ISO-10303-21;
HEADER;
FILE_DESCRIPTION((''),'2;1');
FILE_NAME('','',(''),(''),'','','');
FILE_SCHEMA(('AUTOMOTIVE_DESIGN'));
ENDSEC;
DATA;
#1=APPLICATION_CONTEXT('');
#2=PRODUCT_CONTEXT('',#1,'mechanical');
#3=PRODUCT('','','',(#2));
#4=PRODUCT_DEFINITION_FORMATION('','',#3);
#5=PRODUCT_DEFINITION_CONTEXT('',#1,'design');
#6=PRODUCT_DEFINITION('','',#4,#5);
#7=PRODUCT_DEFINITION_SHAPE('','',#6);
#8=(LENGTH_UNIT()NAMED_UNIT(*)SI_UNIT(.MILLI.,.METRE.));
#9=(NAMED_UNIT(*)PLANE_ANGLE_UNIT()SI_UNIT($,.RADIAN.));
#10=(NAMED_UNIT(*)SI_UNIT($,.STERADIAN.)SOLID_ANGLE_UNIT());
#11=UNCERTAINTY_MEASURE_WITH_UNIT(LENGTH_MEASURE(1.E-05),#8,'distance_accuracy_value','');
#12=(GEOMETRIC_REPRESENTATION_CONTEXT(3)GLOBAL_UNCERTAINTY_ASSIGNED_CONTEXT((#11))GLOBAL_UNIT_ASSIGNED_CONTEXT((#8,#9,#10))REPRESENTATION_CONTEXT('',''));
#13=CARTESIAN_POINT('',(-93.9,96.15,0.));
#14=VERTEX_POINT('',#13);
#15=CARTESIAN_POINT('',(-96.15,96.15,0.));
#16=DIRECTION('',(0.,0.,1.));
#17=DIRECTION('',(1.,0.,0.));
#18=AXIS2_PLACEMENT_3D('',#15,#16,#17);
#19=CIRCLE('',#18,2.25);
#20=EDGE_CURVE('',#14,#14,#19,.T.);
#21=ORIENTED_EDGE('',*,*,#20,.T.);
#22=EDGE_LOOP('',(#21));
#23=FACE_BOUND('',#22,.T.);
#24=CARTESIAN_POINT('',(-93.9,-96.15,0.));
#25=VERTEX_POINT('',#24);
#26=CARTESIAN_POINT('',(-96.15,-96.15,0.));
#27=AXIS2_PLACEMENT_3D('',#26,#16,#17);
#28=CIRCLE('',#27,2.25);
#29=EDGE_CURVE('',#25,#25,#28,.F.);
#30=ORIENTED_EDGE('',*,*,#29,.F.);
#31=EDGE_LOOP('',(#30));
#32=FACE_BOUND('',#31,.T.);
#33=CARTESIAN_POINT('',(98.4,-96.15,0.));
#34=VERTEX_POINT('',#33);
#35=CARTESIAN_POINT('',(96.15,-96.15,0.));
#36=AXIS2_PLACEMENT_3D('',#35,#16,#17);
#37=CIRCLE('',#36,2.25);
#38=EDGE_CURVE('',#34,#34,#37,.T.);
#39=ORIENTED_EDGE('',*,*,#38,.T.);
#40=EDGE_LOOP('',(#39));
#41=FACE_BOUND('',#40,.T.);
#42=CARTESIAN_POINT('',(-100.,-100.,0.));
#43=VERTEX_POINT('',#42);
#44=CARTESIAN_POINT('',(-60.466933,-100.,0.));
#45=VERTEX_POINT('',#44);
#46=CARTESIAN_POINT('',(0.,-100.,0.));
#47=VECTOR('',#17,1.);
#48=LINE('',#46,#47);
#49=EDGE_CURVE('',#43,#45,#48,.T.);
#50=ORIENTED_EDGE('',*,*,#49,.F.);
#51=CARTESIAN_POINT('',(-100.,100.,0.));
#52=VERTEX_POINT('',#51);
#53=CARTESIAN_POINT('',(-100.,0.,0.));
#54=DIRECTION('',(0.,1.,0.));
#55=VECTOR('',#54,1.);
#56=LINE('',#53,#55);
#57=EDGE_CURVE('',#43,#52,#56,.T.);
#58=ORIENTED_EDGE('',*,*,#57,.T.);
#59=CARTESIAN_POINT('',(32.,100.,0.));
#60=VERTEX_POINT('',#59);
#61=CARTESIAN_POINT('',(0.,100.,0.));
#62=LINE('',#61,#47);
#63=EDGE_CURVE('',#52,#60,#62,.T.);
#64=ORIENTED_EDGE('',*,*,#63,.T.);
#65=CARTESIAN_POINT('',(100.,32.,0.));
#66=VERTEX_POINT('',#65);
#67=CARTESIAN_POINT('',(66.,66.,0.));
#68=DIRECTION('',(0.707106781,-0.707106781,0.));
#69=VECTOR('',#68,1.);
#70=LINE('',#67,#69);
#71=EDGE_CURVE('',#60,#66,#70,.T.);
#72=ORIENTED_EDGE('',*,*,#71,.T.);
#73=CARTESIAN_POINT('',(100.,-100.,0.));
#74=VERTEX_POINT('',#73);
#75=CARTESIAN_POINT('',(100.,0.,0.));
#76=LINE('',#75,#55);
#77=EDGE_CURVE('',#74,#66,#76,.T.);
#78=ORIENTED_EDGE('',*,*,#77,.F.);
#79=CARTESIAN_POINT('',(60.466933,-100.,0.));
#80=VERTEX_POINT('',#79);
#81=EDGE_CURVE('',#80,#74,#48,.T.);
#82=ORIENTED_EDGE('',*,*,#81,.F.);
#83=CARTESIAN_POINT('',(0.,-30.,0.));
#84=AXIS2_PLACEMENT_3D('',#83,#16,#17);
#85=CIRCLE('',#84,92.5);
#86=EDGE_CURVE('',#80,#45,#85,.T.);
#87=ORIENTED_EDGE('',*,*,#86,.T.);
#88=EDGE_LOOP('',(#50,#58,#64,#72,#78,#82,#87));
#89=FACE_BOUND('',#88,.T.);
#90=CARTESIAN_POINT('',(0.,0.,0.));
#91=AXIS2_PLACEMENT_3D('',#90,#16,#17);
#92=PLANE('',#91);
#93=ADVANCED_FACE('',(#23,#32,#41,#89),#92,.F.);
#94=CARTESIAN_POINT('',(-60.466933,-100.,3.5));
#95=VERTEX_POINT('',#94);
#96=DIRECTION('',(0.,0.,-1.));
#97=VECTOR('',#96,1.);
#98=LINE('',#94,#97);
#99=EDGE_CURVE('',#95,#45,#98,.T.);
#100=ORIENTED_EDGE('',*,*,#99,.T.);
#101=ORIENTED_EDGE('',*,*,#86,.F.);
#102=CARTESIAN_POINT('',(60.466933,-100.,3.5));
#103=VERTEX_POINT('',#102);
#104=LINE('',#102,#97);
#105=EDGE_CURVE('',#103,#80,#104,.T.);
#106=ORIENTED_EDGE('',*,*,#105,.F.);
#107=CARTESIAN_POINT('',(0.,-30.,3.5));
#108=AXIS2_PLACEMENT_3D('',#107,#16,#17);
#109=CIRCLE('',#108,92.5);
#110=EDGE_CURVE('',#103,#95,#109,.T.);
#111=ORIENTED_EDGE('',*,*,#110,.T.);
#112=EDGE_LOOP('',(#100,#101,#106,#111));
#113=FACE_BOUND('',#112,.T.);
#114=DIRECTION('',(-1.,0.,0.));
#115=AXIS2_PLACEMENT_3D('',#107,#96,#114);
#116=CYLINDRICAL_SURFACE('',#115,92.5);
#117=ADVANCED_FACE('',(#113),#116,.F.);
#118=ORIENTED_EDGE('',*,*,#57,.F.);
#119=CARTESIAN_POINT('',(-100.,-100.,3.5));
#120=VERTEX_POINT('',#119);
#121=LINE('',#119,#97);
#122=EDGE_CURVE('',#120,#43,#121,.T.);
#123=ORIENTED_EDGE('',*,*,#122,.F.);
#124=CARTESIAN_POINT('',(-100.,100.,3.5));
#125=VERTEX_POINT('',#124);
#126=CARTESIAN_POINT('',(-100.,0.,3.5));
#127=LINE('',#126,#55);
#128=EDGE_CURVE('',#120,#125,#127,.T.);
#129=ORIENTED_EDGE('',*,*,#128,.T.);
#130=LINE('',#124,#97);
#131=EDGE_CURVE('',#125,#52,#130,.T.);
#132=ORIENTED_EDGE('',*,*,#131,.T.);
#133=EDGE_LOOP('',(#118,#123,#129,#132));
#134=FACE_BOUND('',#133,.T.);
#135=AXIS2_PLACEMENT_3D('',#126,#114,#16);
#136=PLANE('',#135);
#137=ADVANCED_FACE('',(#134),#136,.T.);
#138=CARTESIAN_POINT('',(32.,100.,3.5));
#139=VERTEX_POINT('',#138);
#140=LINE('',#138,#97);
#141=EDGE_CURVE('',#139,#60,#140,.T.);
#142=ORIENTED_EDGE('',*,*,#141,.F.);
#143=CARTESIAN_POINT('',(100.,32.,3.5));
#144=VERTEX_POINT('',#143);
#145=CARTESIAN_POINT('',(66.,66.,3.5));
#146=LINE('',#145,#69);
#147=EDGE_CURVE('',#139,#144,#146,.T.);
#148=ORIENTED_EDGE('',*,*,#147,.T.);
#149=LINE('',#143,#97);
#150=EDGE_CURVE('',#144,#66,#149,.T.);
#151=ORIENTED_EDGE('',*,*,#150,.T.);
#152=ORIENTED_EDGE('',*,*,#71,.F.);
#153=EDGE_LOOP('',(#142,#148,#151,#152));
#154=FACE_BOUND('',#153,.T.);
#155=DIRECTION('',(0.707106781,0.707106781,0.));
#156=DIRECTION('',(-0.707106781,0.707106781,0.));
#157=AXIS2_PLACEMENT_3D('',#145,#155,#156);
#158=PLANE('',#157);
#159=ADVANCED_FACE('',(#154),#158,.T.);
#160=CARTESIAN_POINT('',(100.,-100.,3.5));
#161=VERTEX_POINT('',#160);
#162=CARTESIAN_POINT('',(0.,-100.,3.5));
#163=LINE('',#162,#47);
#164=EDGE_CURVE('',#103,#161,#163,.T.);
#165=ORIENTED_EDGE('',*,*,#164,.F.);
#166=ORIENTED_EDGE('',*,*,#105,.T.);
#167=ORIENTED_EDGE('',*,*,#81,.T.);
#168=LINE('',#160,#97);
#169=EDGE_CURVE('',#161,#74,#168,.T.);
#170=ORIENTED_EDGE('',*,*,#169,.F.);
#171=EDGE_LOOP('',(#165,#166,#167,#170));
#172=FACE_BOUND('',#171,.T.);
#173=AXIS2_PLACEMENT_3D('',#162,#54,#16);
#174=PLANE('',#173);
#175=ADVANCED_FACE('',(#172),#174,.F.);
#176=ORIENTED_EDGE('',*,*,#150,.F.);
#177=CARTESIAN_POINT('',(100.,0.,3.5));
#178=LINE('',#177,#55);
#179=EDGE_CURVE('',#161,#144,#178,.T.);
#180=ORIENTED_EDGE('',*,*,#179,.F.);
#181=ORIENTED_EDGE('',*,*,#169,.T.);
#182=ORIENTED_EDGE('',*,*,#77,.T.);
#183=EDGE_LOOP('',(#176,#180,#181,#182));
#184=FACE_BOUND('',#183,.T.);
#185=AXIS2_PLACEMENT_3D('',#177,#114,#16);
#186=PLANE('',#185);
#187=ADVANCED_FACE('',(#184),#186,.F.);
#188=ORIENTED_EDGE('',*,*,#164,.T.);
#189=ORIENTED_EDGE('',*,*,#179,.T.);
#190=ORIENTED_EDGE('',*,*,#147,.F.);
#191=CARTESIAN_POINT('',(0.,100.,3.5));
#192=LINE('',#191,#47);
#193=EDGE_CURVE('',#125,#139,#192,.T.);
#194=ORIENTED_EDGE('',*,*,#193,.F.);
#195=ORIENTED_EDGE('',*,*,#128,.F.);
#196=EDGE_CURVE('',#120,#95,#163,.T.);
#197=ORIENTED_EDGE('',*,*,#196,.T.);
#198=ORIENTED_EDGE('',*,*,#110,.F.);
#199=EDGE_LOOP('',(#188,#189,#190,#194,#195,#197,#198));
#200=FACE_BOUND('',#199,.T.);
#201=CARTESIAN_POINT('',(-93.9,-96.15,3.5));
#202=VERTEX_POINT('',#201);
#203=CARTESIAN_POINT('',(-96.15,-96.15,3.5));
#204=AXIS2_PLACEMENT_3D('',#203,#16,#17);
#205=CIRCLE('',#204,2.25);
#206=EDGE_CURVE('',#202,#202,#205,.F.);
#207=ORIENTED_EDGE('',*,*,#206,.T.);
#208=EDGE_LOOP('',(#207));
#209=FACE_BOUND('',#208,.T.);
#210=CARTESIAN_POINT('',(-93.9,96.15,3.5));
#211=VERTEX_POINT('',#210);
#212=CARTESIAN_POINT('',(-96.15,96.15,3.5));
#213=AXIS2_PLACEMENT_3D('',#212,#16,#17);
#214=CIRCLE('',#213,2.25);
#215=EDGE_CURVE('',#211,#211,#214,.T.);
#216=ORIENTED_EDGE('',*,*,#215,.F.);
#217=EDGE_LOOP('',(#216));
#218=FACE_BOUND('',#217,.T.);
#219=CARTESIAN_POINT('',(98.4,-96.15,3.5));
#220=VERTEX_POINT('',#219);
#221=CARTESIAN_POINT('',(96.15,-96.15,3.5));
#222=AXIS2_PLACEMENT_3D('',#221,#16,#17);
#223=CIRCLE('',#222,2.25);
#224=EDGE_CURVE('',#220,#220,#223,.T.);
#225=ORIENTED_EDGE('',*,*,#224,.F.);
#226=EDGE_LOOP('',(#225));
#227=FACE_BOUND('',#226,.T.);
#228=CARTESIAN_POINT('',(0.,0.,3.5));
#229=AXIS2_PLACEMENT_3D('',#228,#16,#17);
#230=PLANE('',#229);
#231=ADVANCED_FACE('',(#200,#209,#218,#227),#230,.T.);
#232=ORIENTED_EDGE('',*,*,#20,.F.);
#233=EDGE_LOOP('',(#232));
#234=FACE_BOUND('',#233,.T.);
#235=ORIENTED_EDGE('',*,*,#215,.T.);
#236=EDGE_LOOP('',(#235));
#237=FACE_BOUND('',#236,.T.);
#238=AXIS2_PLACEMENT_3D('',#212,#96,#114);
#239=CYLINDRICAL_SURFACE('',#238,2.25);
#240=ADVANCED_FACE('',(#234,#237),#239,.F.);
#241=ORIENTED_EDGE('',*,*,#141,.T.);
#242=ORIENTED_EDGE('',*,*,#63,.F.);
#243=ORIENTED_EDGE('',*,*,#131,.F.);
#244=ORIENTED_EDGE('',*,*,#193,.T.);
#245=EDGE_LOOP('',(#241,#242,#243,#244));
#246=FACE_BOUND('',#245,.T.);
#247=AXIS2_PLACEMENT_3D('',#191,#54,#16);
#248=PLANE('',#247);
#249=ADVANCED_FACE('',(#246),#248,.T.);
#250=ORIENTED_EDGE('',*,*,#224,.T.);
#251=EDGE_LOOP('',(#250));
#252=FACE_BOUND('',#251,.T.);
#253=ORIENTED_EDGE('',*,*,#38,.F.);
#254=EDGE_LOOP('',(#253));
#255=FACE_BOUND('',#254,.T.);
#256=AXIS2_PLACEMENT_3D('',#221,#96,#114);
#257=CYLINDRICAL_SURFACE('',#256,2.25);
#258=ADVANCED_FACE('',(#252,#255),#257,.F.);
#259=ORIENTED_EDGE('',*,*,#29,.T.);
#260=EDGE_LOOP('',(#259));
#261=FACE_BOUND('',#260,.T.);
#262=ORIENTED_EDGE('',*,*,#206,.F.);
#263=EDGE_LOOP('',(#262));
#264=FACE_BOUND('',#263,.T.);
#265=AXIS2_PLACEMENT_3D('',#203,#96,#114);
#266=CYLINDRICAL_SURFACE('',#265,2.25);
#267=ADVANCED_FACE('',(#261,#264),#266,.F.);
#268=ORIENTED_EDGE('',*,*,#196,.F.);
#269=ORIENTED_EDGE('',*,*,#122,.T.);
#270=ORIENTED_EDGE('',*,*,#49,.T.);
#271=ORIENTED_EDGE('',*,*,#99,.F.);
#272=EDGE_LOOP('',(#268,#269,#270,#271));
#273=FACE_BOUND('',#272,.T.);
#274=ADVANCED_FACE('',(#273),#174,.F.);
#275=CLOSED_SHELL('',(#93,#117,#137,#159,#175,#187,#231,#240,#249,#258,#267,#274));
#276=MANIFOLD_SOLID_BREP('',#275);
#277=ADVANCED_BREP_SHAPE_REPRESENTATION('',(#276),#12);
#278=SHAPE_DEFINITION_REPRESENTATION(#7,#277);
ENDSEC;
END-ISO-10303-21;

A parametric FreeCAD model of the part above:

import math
import FreeCAD as App
import Part
import Sketcher
from FreeCAD import Vector
Q = App.Units.Quantity

doc = App.newDocument("Part")
body = doc.addObject("PartDesign::Body", "Body")

# Sketch on XY plane
sketch1 = body.newObject("Sketcher::SketchObject", "Sketch")
sketch1.AttachmentSupport = (doc.getObject("XY_Plane"), [""])
sketch1.MapMode = "FlatFace"
sketch1.addGeometry([
    Part.LineSegment(Vector(-100, 100, 0), Vector(-100, -100, 0)),  # 0
    Part.LineSegment(Vector(-100, -100, 0), Vector(-60.5, -100, 0)),  # 1
    Part.ArcOfCircle(Part.Circle(Vector(0, -30, 0), Vector(0, 0, 1), 92.5), math.radians(0), math.radians(229)),  # 2
    Part.ArcOfCircle(Part.Circle(Vector(0, -30, 0), Vector(0, 0, 1), 92.5), math.radians(-49), math.radians(0)),  # 3
    Part.LineSegment(Vector(60.5, -100, 0), Vector(100, -100, 0)),  # 4
    Part.LineSegment(Vector(100, -100, 0), Vector(100, 32, 0)),  # 5
    Part.LineSegment(Vector(100, 32, 0), Vector(32, 100, 0)),  # 6
    Part.LineSegment(Vector(32, 100, 0), Vector(-100, 100, 0)),  # 7
    Part.Circle(Vector(-96.2, -96.2, 0), Vector(0, 0, 1), 2.2),  # 8
    Part.Circle(Vector(96.2, -96.2, 0), Vector(0, 0, 1), 2.2),  # 9
    Part.Circle(Vector(-96.2, 96.2, 0), Vector(0, 0, 1), 2.2),  # 10
], False)
sketch1.addConstraint([
    Sketcher.Constraint("Coincident", 0, 2, 1, 1),
    Sketcher.Constraint("Coincident", 1, 2, 2, 2),
    Sketcher.Constraint("Tangent", 2, 1, 3, 2),
    Sketcher.Constraint("Coincident", 3, 1, 4, 1),
    Sketcher.Constraint("Coincident", 4, 2, 5, 1),
    Sketcher.Constraint("Coincident", 5, 2, 6, 1),
    Sketcher.Constraint("Coincident", 6, 2, 7, 1),
    Sketcher.Constraint("Coincident", 7, 2, 0, 1),
    Sketcher.Constraint("Vertical", 0),
    Sketcher.Constraint("Horizontal", 1),
    Sketcher.Constraint("Horizontal", 4),
    Sketcher.Constraint("Vertical", 5),
    Sketcher.Constraint("Horizontal", 7),
    Sketcher.Constraint("Equal", 2, 3),
    Sketcher.Constraint("Equal", 8, 9),
    Sketcher.Constraint("Equal", 9, 10),
    Sketcher.Constraint("Symmetric", 9, 3, 10, 3, -1, 1),
    Sketcher.Constraint("Symmetric", 4, 2, 7, 2, -1, 1),
    Sketcher.Constraint("Symmetric", 8, 3, 9, 3, -2),
    Sketcher.Constraint("Symmetric", 1, 2, 3, 1, -2),
    Sketcher.Constraint("Horizontal", 3, 3, 2, 1),
    Sketcher.Constraint("Equal", 7, 5),
    Sketcher.Constraint("Diameter", 8, Q("4.5 mm")),
    Sketcher.Constraint("Radius", 2, Q("92.5 mm")),
    Sketcher.Constraint("DistanceX", 7, 2, 7, 1, Q("132 mm")),
    Sketcher.Constraint("DistanceY", 0, 2, 0, 1, Q("200 mm")),
    Sketcher.Constraint("Angle", 6, Q("135 deg")),
    Sketcher.Constraint("DistanceY", 2, 3, -1, 1, Q("30 mm")),
    Sketcher.Constraint("DistanceX", 8, 3, 9, 3, Q("192.3 mm")),
    Sketcher.Constraint("DistanceY", 8, 3, 10, 3, Q("192.3 mm")),
])
pad1 = body.newObject("PartDesign::Pad", "Pad")
pad1.Profile = sketch1
pad1.Length = 3.5

doc.recompute()
